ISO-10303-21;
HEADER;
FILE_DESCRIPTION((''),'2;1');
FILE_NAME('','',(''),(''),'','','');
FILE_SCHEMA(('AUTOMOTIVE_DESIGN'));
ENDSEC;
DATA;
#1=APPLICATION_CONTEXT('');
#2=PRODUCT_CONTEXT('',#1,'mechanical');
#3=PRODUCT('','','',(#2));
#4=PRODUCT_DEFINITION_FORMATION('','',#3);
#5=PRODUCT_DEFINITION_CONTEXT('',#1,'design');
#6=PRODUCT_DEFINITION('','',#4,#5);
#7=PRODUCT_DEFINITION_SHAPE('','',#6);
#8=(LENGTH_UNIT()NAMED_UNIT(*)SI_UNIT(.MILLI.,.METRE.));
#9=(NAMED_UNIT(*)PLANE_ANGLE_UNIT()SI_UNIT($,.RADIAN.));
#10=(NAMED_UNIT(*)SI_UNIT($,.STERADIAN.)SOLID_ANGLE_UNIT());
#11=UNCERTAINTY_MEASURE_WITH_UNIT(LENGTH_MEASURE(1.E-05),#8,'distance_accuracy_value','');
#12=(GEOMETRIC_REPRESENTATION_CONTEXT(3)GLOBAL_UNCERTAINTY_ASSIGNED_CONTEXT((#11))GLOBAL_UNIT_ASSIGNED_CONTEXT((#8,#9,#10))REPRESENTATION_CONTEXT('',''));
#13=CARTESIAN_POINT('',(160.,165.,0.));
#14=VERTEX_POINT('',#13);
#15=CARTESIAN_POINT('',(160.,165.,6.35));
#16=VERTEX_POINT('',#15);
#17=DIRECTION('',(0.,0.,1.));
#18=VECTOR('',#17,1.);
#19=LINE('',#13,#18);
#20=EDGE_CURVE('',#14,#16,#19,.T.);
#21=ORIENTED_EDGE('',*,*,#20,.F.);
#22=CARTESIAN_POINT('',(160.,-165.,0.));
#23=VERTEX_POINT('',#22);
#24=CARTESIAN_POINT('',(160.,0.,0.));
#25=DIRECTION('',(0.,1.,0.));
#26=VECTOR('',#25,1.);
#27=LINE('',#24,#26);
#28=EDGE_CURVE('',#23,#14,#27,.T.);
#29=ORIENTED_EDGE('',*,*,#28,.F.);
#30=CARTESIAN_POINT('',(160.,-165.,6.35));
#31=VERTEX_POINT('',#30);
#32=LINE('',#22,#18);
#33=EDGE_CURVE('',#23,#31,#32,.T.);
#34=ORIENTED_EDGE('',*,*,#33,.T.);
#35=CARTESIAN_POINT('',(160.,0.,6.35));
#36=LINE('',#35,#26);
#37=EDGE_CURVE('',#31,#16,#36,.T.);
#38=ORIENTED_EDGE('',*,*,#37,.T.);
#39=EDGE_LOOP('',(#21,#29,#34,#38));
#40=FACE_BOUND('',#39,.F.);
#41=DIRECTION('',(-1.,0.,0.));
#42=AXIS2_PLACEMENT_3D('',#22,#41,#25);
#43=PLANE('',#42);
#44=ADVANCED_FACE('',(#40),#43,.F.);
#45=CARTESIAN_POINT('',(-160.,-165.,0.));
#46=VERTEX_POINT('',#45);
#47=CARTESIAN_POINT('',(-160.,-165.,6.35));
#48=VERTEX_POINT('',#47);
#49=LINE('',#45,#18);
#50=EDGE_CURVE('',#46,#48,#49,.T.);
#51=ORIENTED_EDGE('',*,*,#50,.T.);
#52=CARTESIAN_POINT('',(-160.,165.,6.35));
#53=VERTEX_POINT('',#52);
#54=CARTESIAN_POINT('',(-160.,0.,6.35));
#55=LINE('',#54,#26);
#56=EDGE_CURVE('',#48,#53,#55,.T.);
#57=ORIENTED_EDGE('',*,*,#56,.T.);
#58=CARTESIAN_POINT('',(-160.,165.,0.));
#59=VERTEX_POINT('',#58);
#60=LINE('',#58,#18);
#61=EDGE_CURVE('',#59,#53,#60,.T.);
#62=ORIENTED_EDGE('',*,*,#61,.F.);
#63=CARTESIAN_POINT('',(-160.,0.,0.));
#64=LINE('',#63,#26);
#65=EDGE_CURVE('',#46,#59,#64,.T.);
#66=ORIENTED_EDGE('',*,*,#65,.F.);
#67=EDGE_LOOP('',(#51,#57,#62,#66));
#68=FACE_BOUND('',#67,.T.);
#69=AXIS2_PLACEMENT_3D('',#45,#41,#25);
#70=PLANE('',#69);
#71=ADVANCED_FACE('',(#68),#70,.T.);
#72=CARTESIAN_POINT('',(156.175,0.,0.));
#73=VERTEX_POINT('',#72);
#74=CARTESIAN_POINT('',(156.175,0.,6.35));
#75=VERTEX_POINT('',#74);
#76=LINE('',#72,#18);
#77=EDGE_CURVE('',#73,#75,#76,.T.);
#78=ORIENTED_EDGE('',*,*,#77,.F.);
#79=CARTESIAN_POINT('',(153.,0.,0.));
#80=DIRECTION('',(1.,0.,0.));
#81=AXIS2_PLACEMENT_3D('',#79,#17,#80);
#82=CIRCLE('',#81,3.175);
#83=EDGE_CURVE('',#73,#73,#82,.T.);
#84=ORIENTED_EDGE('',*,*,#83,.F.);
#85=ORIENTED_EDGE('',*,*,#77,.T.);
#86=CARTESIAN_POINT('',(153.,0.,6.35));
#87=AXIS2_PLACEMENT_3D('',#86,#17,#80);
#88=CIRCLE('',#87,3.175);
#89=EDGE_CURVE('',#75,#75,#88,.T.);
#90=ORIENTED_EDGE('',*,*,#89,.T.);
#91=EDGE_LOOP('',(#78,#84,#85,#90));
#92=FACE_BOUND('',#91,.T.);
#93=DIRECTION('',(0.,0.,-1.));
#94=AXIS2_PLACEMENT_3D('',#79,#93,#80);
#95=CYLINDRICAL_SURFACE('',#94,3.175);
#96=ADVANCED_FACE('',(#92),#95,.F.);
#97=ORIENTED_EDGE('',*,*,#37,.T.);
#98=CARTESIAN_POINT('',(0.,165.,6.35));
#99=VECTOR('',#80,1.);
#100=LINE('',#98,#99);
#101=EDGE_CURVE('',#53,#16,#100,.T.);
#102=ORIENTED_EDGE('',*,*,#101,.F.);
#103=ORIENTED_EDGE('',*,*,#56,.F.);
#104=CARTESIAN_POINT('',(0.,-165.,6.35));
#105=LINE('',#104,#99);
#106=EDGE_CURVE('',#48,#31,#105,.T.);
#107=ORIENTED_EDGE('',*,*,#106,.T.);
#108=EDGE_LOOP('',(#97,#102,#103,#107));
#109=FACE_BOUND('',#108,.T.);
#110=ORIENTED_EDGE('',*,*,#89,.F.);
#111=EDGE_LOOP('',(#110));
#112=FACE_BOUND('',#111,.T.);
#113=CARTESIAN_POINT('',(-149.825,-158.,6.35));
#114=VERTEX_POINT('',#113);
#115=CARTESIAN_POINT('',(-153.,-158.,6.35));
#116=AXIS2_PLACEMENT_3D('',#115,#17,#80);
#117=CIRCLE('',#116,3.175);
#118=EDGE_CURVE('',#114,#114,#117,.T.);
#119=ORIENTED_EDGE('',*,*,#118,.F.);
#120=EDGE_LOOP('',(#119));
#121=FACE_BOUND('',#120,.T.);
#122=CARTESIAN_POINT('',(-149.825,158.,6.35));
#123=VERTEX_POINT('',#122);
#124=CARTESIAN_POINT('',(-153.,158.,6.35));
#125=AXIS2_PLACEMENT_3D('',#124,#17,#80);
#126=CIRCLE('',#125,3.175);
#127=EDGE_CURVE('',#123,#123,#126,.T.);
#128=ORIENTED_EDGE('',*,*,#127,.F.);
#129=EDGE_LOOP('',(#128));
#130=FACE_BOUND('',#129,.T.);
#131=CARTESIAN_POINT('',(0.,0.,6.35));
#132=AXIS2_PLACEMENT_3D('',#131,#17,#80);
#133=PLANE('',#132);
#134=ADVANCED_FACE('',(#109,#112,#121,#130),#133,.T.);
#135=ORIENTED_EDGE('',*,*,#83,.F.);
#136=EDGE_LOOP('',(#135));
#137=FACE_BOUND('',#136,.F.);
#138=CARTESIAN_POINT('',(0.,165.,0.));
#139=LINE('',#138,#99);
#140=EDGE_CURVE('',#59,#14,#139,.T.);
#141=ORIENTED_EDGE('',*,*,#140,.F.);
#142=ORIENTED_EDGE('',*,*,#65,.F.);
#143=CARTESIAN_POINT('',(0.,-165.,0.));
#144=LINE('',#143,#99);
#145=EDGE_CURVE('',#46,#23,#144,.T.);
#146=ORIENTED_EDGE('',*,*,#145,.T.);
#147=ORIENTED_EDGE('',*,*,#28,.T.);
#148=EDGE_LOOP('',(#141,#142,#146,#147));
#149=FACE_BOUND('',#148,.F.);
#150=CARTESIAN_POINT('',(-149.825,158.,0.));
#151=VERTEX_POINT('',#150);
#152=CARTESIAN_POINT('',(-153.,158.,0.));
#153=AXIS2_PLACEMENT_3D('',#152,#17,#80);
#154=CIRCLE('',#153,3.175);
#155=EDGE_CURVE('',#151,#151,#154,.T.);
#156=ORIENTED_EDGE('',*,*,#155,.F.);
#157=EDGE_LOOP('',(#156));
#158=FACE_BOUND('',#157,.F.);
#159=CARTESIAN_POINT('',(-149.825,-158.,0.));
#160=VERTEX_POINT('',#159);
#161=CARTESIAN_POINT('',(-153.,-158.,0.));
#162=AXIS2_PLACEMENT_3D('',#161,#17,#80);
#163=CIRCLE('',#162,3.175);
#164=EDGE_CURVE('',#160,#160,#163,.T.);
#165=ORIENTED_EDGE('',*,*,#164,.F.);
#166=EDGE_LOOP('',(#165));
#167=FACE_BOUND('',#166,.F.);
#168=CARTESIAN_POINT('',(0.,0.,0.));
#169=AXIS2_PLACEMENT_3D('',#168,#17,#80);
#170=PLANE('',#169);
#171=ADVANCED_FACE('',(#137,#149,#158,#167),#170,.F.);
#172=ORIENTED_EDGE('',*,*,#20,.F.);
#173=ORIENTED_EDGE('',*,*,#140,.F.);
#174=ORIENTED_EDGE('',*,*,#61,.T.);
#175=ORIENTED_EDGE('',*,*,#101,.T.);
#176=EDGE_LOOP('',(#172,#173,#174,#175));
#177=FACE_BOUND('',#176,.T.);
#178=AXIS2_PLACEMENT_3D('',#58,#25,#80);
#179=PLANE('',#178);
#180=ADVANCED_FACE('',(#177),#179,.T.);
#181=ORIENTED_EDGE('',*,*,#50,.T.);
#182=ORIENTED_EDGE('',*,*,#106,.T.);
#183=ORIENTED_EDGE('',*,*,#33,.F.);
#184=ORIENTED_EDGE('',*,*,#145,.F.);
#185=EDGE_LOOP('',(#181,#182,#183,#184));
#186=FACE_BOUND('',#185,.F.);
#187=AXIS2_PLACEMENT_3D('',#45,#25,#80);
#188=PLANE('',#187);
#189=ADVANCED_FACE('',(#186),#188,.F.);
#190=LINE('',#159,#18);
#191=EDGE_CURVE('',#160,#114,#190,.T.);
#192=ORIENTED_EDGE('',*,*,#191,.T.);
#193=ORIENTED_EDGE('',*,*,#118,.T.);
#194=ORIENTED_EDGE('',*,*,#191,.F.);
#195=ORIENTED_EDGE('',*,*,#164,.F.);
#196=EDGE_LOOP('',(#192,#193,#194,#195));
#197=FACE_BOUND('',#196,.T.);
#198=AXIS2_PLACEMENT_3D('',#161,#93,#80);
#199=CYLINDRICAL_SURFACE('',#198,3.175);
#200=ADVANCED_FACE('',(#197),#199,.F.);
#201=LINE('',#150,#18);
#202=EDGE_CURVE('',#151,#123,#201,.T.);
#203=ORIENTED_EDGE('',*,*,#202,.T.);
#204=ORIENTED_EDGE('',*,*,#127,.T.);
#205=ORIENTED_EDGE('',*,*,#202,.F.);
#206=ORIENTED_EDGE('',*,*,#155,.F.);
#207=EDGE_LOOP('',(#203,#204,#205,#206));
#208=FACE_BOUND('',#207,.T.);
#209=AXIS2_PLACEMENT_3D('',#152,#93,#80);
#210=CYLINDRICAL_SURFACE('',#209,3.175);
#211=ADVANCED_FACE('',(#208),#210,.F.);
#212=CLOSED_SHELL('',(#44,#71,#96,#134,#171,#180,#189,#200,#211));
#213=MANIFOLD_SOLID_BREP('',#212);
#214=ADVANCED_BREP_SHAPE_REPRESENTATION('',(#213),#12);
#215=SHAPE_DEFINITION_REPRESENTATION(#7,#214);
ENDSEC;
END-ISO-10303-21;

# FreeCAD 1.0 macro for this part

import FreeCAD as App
import Part
import Sketcher


def add_polygon(sketch, points):
    """Adds a closed chain of lines whose ends are joined by coincident constraints."""
    first, n = sketch.GeometryCount, len(points)
    for a, b in zip(points, points[1:] + points[:1]):
        sketch.addGeometry(Part.LineSegment(App.Vector(*a, 0), App.Vector(*b, 0)), False)
    for i in range(n):
        sketch.addConstraint(Sketcher.Constraint("Coincident", first + i, 2, first + (i + 1) % n, 1))

doc = App.newDocument("Part")
body = doc.addObject("PartDesign::Body", "Body")

sketch1 = doc.addObject("Sketcher::SketchObject", "Sketch")
body.addObject(sketch1)
sketch1.AttachmentSupport = (doc.XY_Plane, [""])
sketch1.MapMode = "FlatFace"
add_polygon(sketch1, [(-160, 165), (-160, -165), (160, -165), (160, 165)])
sketch1.addGeometry(Part.Circle(App.Vector(-153, -158, 0), App.Vector(0, 0, 1), 3.2), False)
sketch1.addGeometry(Part.Circle(App.Vector(-153, 158, 0), App.Vector(0, 0, 1), 3.2), False)
sketch1.addGeometry(Part.Circle(App.Vector(153, 0, 0), App.Vector(0, 0, 1), 3.2), False)
sketch1.addConstraint(Sketcher.Constraint("Vertical", 0))
sketch1.addConstraint(Sketcher.Constraint("Horizontal", 1))
sketch1.addConstraint(Sketcher.Constraint("Vertical", 2))
sketch1.addConstraint(Sketcher.Constraint("Horizontal", 3))
sketch1.addConstraint(Sketcher.Constraint("Equal", 4, 5))
sketch1.addConstraint(Sketcher.Constraint("Equal", 5, 6))
sketch1.addConstraint(Sketcher.Constraint("Symmetric", 0, 2, 2, 2, -1, 1))
sketch1.addConstraint(Sketcher.Constraint("Symmetric", 4, 3, 5, 3, -1))
sketch1.addConstraint(Sketcher.Constraint("PointOnObject", 6, 3, -1))
sketch1.addConstraint(Sketcher.Constraint("Diameter", 4, 6.35))
sketch1.addConstraint(Sketcher.Constraint("DistanceX", 1, 1, 1, 2, 320.0))
sketch1.addConstraint(Sketcher.Constraint("DistanceY", 0, 2, 0, 1, 330.0))
sketch1.addConstraint(Sketcher.Constraint("DistanceX", 4, 3, -1, 1, 153.0))
sketch1.addConstraint(Sketcher.Constraint("DistanceY", 4, 3, -1, 1, 158.0))
sketch1.addConstraint(Sketcher.Constraint("DistanceX", -1, 1, 6, 3, 153.0))
pad1 = doc.addObject("PartDesign::Pad", "Pad")
body.addObject(pad1)
pad1.Profile = sketch1
pad1.Length = 6.35

doc.recompute()
